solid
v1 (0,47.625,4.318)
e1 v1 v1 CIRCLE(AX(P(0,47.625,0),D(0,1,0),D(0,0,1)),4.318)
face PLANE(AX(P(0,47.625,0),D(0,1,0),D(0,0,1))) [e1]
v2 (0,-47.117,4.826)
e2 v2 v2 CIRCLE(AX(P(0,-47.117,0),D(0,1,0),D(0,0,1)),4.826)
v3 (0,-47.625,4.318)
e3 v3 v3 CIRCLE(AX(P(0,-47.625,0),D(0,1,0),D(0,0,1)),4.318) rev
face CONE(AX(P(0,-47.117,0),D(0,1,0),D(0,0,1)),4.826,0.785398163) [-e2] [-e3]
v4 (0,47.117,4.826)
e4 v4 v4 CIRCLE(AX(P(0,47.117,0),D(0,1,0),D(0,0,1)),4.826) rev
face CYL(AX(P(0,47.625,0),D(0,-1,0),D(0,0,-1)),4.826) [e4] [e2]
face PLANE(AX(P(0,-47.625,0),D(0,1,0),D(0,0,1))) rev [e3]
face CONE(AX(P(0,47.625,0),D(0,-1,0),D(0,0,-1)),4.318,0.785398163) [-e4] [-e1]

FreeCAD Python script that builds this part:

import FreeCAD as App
import Part
import Sketcher
Q = App.Units.Quantity


def edges_at(feature, points):
    """Names of the edges that pass closest to the given points."""
    edges = feature.Shape.Edges
    near = lambda p: min(range(len(edges)), key=lambda i: edges[i].distToShape(Part.Vertex(*p))[0])
    return sorted({f"Edge{near(p) + 1}" for p in points})

doc = App.newDocument("Part")
params = doc.addObject("Spreadsheet::Sheet", "Params")
for row, (alias, value) in enumerate([
    ("sketch1_diameter", "0.38 in"),
    ("pad1_length", "3.75 in"),
    ("chamfer_size", "0.02 in"),
], start=1):
    params.set(f"A{row}", alias)
    params.set(f"B{row}", "=" + value)
    params.setAlias(f"B{row}", alias)

body = doc.addObject("PartDesign::Body", "Body")

# Sketch on XZ plane
sketch1 = body.newObject("Sketcher::SketchObject", "Sketch")
sketch1.AttachmentSupport = (doc.getObject("XZ_Plane"), [""])
sketch1.MapMode = "FlatFace"
sketch1.addGeometry(Part.Circle(App.Vector(0, 0, 0), App.Vector(0, 0, 1), 4.8), False)
sketch1.addConstraint([
    Sketcher.Constraint("Coincident", 0, 3, -1, 1),
    Sketcher.Constraint("Diameter", 0, Q("0.38 in")),
])
sketch1.setExpression("Constraints[1]", "Params.sketch1_diameter")
pad1 = body.newObject("PartDesign::Pad", "Pad")
pad1.Profile = sketch1
pad1.setExpression("Length", "Params.pad1_length")
pad1.Midplane = True
doc.recompute()

chamfer = body.newObject("PartDesign::Chamfer", "Chamfer")
chamfer.Base = (pad1, edges_at(pad1, [(-4.826, -47.625, 0), (-4.826, 47.625, 0)]))
chamfer.setExpression("Size", "Params.chamfer_size")

doc.recompute()
